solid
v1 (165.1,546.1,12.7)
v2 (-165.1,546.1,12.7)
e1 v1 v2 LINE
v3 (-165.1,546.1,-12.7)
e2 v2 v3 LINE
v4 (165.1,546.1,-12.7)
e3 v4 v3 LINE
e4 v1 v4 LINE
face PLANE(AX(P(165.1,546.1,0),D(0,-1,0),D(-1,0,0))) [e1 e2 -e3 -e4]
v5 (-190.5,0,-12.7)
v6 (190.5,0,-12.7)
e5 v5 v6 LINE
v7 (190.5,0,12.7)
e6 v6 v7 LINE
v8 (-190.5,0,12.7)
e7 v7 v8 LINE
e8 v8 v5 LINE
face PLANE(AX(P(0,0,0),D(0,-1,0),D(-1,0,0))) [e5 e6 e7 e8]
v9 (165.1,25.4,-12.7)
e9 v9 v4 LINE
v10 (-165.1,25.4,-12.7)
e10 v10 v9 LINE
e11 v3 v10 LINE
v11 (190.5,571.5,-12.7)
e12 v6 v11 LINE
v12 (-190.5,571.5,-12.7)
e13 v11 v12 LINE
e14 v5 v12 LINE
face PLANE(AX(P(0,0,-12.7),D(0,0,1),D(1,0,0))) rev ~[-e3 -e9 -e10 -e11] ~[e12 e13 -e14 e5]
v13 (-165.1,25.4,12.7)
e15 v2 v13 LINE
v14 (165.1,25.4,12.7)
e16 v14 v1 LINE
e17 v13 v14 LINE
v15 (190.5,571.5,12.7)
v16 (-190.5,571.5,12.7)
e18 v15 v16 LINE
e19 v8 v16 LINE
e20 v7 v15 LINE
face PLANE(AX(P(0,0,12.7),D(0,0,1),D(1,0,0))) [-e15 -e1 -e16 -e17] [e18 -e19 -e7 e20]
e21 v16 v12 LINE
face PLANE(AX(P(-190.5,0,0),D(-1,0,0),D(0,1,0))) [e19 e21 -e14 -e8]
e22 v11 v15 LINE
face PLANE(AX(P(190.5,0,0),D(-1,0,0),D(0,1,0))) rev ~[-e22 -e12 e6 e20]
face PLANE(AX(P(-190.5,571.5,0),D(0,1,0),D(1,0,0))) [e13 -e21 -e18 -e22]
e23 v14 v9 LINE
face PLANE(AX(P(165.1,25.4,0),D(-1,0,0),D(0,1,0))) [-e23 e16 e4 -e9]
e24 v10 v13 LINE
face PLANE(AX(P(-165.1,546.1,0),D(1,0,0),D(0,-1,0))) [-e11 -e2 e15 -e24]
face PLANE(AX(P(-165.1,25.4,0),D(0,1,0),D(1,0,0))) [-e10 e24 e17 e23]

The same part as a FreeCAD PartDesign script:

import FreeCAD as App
import Part
import Sketcher
from FreeCAD import Vector
Q = App.Units.Quantity

doc = App.newDocument("Part")
body = doc.addObject("PartDesign::Body", "Body")

sketch1 = body.newObject("Sketcher::SketchObject", "Sketch")
sketch1.AttachmentSupport = (doc.getObject("XY_Plane"), [""])
sketch1.MapMode = "FlatFace"
sketch1.addGeometry([
    Part.LineSegment(Vector(-190.5, 0, 0), Vector(190.5, 0, 0)),
    Part.LineSegment(Vector(190.5, 0, 0), Vector(190.5, 571.5, 0)),
    Part.LineSegment(Vector(190.5, 571.5, 0), Vector(-190.5, 571.5, 0)),
    Part.LineSegment(Vector(-190.5, 571.5, 0), Vector(-190.5, 0, 0)),
    Part.LineSegment(Vector(165.1, 25.4, 0), Vector(-165.1, 25.4, 0)),
    Part.LineSegment(Vector(-165.1, 25.4, 0), Vector(-165.1, 546.1, 0)),
    Part.LineSegment(Vector(-165.1, 546.1, 0), Vector(165.1, 546.1, 0)),
    Part.LineSegment(Vector(165.1, 546.1, 0), Vector(165.1, 25.4, 0)),
], False)
sketch1.addConstraint([
    Sketcher.Constraint("Coincident", 0, 2, 1, 1),
    Sketcher.Constraint("Coincident", 1, 2, 2, 1),
    Sketcher.Constraint("Coincident", 2, 2, 3, 1),
    Sketcher.Constraint("Coincident", 3, 2, 0, 1),
    Sketcher.Constraint("Coincident", 4, 2, 5, 1),
    Sketcher.Constraint("Coincident", 5, 2, 6, 1),
    Sketcher.Constraint("Coincident", 6, 2, 7, 1),
    Sketcher.Constraint("Coincident", 7, 2, 4, 1),
    Sketcher.Constraint("Horizontal", 0),
    Sketcher.Constraint("Vertical", 1),
    Sketcher.Constraint("Horizontal", 2),
    Sketcher.Constraint("Vertical", 3),
    Sketcher.Constraint("Horizontal", 4),
    Sketcher.Constraint("Vertical", 5),
    Sketcher.Constraint("Horizontal", 6),
    Sketcher.Constraint("Vertical", 7),
    Sketcher.Constraint("Symmetric", 0, 2, 3, 2, -1, 1),
    Sketcher.Constraint("DistanceX", 0, 1, 0, 2, Q("15 in")),
    Sketcher.Constraint("DistanceY", 1, 1, 1, 2, Q("22.5 in")),
    Sketcher.Constraint("DistanceY", -1, 1, 4, 2, Q("1 in")),
    Sketcher.Constraint("DistanceX", 3, 2, 4, 2, Q("1 in")),
    Sketcher.Constraint("DistanceY", 5, 2, 2, 2, Q("1 in")),
    Sketcher.Constraint("DistanceX", 6, 2, 1, 2, Q("1 in")),
])
pad1 = body.newObject("PartDesign::Pad", "Pad")
pad1.Profile = sketch1
pad1.Length = Q("1 in")
pad1.Midplane = True

doc.recompute()
